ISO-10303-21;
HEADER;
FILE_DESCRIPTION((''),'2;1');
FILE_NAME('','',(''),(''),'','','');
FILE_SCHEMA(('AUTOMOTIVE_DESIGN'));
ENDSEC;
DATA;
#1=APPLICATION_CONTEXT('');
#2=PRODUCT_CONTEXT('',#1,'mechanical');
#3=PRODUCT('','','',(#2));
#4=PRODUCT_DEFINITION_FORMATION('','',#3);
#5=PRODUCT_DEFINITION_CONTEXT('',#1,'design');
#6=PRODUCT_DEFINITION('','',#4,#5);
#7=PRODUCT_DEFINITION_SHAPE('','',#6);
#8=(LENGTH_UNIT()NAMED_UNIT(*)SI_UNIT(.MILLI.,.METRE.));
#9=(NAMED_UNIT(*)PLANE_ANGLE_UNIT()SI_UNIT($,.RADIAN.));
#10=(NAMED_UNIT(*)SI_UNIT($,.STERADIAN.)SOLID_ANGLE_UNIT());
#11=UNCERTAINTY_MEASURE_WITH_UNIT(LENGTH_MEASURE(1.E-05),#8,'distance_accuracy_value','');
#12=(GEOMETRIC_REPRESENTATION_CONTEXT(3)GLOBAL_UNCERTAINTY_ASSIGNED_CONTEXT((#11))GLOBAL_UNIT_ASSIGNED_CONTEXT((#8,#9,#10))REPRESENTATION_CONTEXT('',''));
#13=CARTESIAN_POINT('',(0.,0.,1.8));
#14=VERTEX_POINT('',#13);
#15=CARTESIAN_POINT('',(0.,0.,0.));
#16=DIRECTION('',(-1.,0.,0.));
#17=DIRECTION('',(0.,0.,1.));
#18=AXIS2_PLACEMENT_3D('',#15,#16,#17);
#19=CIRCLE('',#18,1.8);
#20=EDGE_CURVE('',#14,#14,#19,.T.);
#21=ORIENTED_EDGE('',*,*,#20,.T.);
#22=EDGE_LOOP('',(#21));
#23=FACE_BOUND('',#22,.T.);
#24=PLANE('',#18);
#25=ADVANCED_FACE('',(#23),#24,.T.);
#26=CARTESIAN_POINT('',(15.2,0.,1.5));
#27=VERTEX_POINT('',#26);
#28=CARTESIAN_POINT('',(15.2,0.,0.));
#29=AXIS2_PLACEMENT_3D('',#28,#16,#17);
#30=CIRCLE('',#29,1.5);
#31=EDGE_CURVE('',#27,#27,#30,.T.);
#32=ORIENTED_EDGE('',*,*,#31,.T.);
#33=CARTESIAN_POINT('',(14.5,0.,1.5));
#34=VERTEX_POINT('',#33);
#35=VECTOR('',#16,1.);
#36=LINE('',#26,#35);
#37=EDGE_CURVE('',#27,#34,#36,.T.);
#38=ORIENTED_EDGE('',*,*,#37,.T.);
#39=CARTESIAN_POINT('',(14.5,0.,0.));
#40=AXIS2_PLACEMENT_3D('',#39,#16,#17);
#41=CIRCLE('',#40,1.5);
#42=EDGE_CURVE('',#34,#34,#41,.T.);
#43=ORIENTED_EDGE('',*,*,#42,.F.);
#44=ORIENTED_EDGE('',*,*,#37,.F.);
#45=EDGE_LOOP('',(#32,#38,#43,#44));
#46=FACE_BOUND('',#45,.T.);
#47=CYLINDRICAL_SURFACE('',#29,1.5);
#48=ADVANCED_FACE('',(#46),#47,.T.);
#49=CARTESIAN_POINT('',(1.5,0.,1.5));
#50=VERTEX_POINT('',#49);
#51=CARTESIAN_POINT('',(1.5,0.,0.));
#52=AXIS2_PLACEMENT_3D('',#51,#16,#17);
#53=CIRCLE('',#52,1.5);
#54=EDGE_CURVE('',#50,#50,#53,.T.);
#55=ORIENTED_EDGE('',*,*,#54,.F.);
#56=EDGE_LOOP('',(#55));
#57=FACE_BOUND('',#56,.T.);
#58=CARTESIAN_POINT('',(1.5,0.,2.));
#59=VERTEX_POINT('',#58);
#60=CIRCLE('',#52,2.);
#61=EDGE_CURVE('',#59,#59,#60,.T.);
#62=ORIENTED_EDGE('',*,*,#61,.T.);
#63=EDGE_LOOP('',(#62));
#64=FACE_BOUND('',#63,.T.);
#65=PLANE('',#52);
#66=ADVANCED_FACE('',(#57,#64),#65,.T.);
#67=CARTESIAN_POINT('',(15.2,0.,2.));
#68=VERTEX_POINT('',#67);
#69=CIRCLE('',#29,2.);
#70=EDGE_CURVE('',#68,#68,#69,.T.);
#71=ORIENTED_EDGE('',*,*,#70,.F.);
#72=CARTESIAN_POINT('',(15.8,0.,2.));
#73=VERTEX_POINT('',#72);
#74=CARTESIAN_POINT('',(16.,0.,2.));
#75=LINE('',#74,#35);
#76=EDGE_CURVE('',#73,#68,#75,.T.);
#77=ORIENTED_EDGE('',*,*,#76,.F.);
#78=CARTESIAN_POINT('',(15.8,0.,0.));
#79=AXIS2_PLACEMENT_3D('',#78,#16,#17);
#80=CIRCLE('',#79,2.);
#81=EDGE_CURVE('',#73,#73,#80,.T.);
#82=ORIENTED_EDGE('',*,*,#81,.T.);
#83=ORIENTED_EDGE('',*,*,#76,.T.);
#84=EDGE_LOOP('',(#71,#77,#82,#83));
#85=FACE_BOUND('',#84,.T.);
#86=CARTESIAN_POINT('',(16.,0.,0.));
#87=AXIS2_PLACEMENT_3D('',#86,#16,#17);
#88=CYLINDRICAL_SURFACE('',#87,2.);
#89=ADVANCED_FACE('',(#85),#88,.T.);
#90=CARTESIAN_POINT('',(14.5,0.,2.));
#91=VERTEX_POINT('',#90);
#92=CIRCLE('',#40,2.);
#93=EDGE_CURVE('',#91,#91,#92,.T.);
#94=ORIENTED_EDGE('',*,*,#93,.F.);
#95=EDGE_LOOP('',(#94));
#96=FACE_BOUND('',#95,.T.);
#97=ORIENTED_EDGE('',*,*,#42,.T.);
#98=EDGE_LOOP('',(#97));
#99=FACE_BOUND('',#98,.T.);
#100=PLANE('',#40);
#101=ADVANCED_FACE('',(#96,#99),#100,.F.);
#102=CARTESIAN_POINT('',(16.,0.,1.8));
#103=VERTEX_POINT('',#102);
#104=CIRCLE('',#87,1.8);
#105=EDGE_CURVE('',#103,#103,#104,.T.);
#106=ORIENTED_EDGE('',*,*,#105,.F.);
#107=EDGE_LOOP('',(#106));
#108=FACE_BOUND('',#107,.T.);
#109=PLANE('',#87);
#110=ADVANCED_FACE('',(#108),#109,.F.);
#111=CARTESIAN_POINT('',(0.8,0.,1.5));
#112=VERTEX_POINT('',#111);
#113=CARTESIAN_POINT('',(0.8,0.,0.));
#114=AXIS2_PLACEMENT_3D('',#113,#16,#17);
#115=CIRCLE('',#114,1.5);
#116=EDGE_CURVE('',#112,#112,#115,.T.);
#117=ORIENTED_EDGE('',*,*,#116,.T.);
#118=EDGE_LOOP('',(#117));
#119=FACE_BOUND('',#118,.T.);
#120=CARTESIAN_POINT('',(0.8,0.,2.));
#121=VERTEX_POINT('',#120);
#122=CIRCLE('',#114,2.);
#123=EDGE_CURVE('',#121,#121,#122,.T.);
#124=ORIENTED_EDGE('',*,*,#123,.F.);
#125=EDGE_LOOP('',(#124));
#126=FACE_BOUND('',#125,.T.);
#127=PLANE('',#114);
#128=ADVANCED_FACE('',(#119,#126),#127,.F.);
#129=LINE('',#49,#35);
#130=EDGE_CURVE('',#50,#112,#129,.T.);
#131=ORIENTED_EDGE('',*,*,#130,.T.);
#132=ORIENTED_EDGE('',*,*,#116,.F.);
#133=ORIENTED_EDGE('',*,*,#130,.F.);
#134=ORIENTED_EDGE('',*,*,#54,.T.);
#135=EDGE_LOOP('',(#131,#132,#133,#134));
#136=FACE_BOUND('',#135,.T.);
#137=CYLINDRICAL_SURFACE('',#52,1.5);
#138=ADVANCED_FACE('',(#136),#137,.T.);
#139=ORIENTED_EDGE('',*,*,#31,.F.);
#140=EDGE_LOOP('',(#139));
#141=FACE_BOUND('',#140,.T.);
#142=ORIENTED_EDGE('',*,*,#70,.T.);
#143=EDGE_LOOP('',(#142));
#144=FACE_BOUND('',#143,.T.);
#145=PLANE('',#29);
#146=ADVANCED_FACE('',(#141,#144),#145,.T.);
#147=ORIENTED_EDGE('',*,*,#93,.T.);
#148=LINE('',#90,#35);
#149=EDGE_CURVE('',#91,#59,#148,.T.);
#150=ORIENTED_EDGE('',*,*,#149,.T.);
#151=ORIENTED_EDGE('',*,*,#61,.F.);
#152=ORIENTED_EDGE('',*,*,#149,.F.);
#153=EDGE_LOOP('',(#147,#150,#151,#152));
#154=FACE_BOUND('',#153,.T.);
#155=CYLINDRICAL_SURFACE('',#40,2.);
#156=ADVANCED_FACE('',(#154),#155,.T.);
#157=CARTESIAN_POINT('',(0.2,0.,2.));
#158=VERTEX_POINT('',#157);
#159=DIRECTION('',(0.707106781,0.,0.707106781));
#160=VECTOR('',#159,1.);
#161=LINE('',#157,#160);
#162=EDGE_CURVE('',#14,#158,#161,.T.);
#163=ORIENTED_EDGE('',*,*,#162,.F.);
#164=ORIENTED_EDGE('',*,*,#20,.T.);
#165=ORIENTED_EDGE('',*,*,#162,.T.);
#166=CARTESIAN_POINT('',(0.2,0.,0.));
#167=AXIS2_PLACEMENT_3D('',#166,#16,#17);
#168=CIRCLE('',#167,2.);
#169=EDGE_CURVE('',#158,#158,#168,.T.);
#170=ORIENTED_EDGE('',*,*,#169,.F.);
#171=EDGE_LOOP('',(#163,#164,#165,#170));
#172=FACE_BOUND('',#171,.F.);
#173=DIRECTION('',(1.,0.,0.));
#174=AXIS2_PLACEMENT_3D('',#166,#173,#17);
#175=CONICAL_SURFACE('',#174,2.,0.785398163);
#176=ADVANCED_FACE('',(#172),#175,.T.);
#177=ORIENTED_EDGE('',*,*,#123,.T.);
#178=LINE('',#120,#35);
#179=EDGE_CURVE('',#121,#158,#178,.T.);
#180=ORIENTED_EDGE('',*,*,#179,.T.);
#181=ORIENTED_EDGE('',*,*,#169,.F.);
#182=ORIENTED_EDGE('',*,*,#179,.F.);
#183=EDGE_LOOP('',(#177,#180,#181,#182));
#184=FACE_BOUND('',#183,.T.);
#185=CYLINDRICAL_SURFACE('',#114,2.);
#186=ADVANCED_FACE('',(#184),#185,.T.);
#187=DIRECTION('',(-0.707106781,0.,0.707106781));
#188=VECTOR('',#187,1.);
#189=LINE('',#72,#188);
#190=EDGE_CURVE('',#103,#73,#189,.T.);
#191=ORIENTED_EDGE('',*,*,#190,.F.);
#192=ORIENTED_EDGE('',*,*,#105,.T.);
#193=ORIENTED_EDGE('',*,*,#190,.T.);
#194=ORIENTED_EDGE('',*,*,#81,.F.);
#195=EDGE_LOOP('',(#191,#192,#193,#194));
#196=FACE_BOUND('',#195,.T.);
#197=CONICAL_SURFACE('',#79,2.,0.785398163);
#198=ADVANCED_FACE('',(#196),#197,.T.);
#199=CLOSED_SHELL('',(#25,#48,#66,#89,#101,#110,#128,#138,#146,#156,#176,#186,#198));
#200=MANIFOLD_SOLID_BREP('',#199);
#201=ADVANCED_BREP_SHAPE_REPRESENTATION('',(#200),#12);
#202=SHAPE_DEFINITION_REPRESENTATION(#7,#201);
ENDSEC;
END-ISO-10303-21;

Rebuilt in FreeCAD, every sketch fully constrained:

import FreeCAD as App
import Part
import Sketcher

V = App.Vector
Q = App.Units.Quantity


def edges_at(feature, points):
    """Names of the edges that pass closest to the given points."""
    edges = feature.Shape.Edges
    near = lambda p: min(range(len(edges)), key=lambda i: edges[i].distToShape(Part.Vertex(*p))[0])
    return sorted({f"Edge{near(p) + 1}" for p in points})


def add_polygon(sketch, points):
    """Adds a closed chain of lines whose ends are joined by coincident constraints."""
    first, n = sketch.GeometryCount, len(points)
    for a, b in zip(points, points[1:] + points[:1]):
        sketch.addGeometry(Part.LineSegment(App.Vector(*a, 0), App.Vector(*b, 0)), False)
    for i in range(n):
        sketch.addConstraint(Sketcher.Constraint("Coincident", first + i, 2, first + (i + 1) % n, 1))

doc = App.newDocument("Part")
body = doc.addObject("PartDesign::Body", "Body")

# Sketch on XZ plane
sketch1 = body.newObject("Sketcher::SketchObject", "Sketch")
sketch1.AttachmentSupport = (doc.getObject("XZ_Plane"), [""])
sketch1.MapMode = "FlatFace"
add_polygon(sketch1, [(0, 2), (0, 0), (16, 0), (16, 2), (15.2, 2), (15.2, 1.5), (14.5, 1.5), (14.5, 2), (1.5, 2), (1.5, 1.5), (0.8, 1.5), (0.8, 2)])  # lines 0-11
sketch1.addConstraint([
    Sketcher.Constraint("Vertical", 0),
    Sketcher.Constraint("Horizontal", 1),
    Sketcher.Constraint("Vertical", 2),
    Sketcher.Constraint("Horizontal", 3),
    Sketcher.Constraint("Vertical", 4),
    Sketcher.Constraint("Horizontal", 5),
    Sketcher.Constraint("Vertical", 6),
    Sketcher.Constraint("Horizontal", 7),
    Sketcher.Constraint("Vertical", 8),
    Sketcher.Constraint("Horizontal", 9),
    Sketcher.Constraint("Vertical", 10),
    Sketcher.Constraint("Horizontal", 11),
    Sketcher.Constraint("Coincident", 0, 2, -1, 1),
    Sketcher.Constraint("Horizontal", 3, 2, 6, 2),
    Sketcher.Constraint("Horizontal", 5, 2, 8, 2),
    Sketcher.Constraint("Horizontal", 7, 2, 10, 2),
    Sketcher.Constraint("Equal", 5, 9),
    Sketcher.Constraint("Equal", 3, 11),
    Sketcher.Constraint("DistanceX", 1, 1, 1, 2, Q("16 mm")),
    Sketcher.Constraint("DistanceX", 7, 2, 7, 1, Q("13 mm")),
    Sketcher.Constraint("DistanceY", 0, 2, 0, 1, Q("2 mm")),
    Sketcher.Constraint("DistanceX", 3, 2, 3, 1, Q("0.8 mm")),
    Sketcher.Constraint("DistanceY", 4, 2, 4, 1, Q("0.5 mm")),
])
revolution = body.newObject("PartDesign::Revolution", "Revolution")
revolution.Profile = sketch1
revolution.ReferenceAxis = (sketch1, ["H_Axis"])
revolution.Angle = 360
doc.recompute()

chamfer = body.newObject("PartDesign::Chamfer", "Chamfer")
chamfer.Base = (revolution, edges_at(revolution, [(0, 0, -2), (16, 0, -2)]))
chamfer.Size = 0.2

doc.recompute()
